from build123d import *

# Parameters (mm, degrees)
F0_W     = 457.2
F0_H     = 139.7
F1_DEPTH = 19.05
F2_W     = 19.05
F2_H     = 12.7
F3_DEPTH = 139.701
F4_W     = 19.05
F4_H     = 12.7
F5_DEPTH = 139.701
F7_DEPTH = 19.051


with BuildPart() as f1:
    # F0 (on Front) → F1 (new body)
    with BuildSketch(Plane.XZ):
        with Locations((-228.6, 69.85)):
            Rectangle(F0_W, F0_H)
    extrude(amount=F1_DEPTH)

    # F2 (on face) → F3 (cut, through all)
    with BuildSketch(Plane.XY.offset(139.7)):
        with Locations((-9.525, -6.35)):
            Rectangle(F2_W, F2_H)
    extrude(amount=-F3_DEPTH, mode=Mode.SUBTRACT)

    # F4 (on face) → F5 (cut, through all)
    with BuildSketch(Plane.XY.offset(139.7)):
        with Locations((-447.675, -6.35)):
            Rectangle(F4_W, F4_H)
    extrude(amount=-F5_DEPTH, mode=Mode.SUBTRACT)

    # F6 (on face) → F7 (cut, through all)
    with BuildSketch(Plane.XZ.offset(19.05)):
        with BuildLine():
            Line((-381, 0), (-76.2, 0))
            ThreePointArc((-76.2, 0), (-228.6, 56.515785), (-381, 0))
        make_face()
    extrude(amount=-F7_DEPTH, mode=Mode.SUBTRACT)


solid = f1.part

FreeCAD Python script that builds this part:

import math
import FreeCAD as App
import Part
import Sketcher
from FreeCAD import Vector
Q = App.Units.Quantity


def add_polygon(sketch, points):
    """Adds a closed chain of lines whose ends are joined by coincident constraints."""
    first, n = sketch.GeometryCount, len(points)
    for a, b in zip(points, points[1:] + points[:1]):
        sketch.addGeometry(Part.LineSegment(App.Vector(*a, 0), App.Vector(*b, 0)), False)
    for i in range(n):
        sketch.addConstraint(Sketcher.Constraint("Coincident", first + i, 2, first + (i + 1) % n, 1))

doc = App.newDocument("Part")
body = doc.addObject("PartDesign::Body", "Body")

sketch1 = doc.addObject("Sketcher::SketchObject", "Sketch")
body.addObject(sketch1)
sketch1.AttachmentSupport = (doc.XZ_Plane, [""])
sketch1.MapMode = "FlatFace"
add_polygon(sketch1, [(-457.2, 139.7), (-457.2, 0), (0, 0), (0, 139.7)])
sketch1.addConstraint([
    Sketcher.Constraint("Vertical", 0),
    Sketcher.Constraint("Horizontal", 1),
    Sketcher.Constraint("Vertical", 2),
    Sketcher.Constraint("Horizontal", 3),
    Sketcher.Constraint("Coincident", 1, 2, -1, 1),
    Sketcher.Constraint("DistanceX", 1, 1, 1, 2, Q("18 in")),
    Sketcher.Constraint("DistanceY", 0, 2, 0, 1, Q("5.5 in")),
])
pad1 = doc.addObject("PartDesign::Pad", "Pad")
body.addObject(pad1)
pad1.Profile = sketch1
pad1.Length = Q("0.75 in")

sketch2 = doc.addObject("Sketcher::SketchObject", "Sketch001")
body.addObject(sketch2)
sketch2.AttachmentSupport = (doc.XY_Plane, [""])
sketch2.MapMode = "FlatFace"
sketch2.AttachmentOffset = App.Placement(Vector(0, 0, 5.5 * 25.4), App.Rotation())
add_polygon(sketch2, [(-19.05, 0), (-19.05, -12.7), (0, -12.7), (0, 0)])
sketch2.addConstraint([
    Sketcher.Constraint("Vertical", 0),
    Sketcher.Constraint("Horizontal", 1),
    Sketcher.Constraint("Vertical", 2),
    Sketcher.Constraint("Horizontal", 3),
    Sketcher.Constraint("Coincident", 2, 2, -1, 1),
    Sketcher.Constraint("DistanceY", 0, 2, 0, 1, Q("0.5 in")),
    Sketcher.Constraint("DistanceX", 1, 1, 1, 2, Q("0.75 in")),
])
pocket1 = doc.addObject("PartDesign::Pocket", "Pocket")
body.addObject(pocket1)
pocket1.Profile = sketch2
pocket1.Type = "ThroughAll"

sketch3 = doc.addObject("Sketcher::SketchObject", "Sketch002")
body.addObject(sketch3)
sketch3.AttachmentSupport = (doc.XY_Plane, [""])
sketch3.MapMode = "FlatFace"
sketch3.AttachmentOffset = App.Placement(Vector(0, 0, 5.5 * 25.4), App.Rotation())
add_polygon(sketch3, [(-457.2, 0), (-457.2, -12.7), (-438.15, -12.7), (-438.15, 0)])
sketch3.addConstraint([
    Sketcher.Constraint("Vertical", 0),
    Sketcher.Constraint("Horizontal", 1),
    Sketcher.Constraint("Vertical", 2),
    Sketcher.Constraint("Horizontal", 3),
    Sketcher.Constraint("PointOnObject", 2, 2, -1),
    Sketcher.Constraint("DistanceY", 0, 2, 0, 1, Q("0.5 in")),
    Sketcher.Constraint("DistanceX", 0, 2, -1, 1, Q("18 in")),
    Sketcher.Constraint("DistanceX", 1, 1, 1, 2, Q("0.75 in")),
])
pocket2 = doc.addObject("PartDesign::Pocket", "Pocket001")
body.addObject(pocket2)
pocket2.Profile = sketch3
pocket2.Type = "ThroughAll"

sketch4 = doc.addObject("Sketcher::SketchObject", "Sketch003")
body.addObject(sketch4)
sketch4.AttachmentSupport = (doc.XZ_Plane, [""])
sketch4.MapMode = "FlatFace"
sketch4.AttachmentOffset = App.Placement(Vector(0, 0, 0.75 * 25.4), App.Rotation())
sketch4.addGeometry([
    Part.LineSegment(Vector(-381, 0, 0), Vector(-76.2, 0, 0)),
    Part.ArcOfCircle(Part.Circle(Vector(-228.6, -177.222399, 0), Vector(0, 0, 1), 233.738184), math.radians(49.306562), math.radians(130.693438)),
], False)
sketch4.addConstraint([
    Sketcher.Constraint("Coincident", 0, 1, 1, 2),
    Sketcher.Constraint("Coincident", 1, 1, 0, 2),
    Sketcher.Constraint("Horizontal", 0),
    Sketcher.Constraint("PointOnObject", 0, 1, -1),
    Sketcher.Constraint("DistanceX", 0, 1, 0, 2, Q("12 in")),
    Sketcher.Constraint("DistanceX", 1, 3, -1, 1, Q("9 in")),
    Sketcher.Constraint("Radius", 1, Q("233.738184 mm")),
])
pocket3 = doc.addObject("PartDesign::Pocket", "Pocket002")
body.addObject(pocket3)
pocket3.Profile = sketch4
pocket3.Type = "ThroughAll"

doc.recompute()
